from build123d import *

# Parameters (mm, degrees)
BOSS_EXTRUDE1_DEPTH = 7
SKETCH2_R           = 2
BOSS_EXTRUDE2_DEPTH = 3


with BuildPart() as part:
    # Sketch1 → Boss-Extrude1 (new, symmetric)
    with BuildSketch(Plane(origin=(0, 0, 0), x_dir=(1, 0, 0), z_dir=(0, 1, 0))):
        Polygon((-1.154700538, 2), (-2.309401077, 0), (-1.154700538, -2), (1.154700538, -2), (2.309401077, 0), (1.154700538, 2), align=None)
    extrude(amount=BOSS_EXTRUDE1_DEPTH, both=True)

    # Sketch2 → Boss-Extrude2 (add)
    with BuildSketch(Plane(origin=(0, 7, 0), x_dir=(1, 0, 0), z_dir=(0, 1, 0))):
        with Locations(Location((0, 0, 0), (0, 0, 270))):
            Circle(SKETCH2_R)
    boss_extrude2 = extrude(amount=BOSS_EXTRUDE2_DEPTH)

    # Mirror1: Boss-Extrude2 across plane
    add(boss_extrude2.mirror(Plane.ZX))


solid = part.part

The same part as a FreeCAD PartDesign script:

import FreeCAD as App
import Part
import Sketcher
Q = App.Units.Quantity

doc = App.newDocument("Part")
body = doc.addObject("PartDesign::Body", "Body")

# Sketch on XZ plane
sketch1 = body.newObject("Sketcher::SketchObject", "Sketch")
sketch1.AttachmentSupport = (doc.getObject("XZ_Plane"), [""])
sketch1.MapMode = "FlatFace"
sketch1.addGeometry(Part.LineSegment(App.Vector(-1.154701, -2, 0), App.Vector(-2.309401, 0, 0)), False)
sketch1.addGeometry(Part.LineSegment(App.Vector(-2.309401, 0, 0), App.Vector(-1.154701, 2, 0)), False)
sketch1.addGeometry(Part.LineSegment(App.Vector(-1.154701, 2, 0), App.Vector(1.154701, 2, 0)), False)
sketch1.addGeometry(Part.LineSegment(App.Vector(1.154701, 2, 0), App.Vector(2.309401, 0, 0)), False)
sketch1.addGeometry(Part.LineSegment(App.Vector(2.309401, 0, 0), App.Vector(1.154701, -2, 0)), False)
sketch1.addGeometry(Part.LineSegment(App.Vector(1.154701, -2, 0), App.Vector(-1.154701, -2, 0)), False)
sketch1.addConstraint(Sketcher.Constraint("Coincident", 0, 2, 1, 1))
sketch1.addConstraint(Sketcher.Constraint("Coincident", 1, 2, 2, 1))
sketch1.addConstraint(Sketcher.Constraint("Coincident", 2, 2, 3, 1))
sketch1.addConstraint(Sketcher.Constraint("Coincident", 3, 2, 4, 1))
sketch1.addConstraint(Sketcher.Constraint("Coincident", 4, 2, 5, 1))
sketch1.addConstraint(Sketcher.Constraint("Coincident", 5, 2, 0, 1))
sketch1.addConstraint(Sketcher.Constraint("Horizontal", 2))
sketch1.addConstraint(Sketcher.Constraint("Horizontal", 5))
sketch1.addConstraint(Sketcher.Constraint("Symmetric", 0, 2, 3, 2, -1, 1))
sketch1.addConstraint(Sketcher.Constraint("Symmetric", 1, 2, 4, 2, -1, 1))
sketch1.addConstraint(Sketcher.Constraint("PointOnObject", 0, 2, -1))
sketch1.addConstraint(Sketcher.Constraint("Parallel", 0, 3))
sketch1.addConstraint(Sketcher.Constraint("Vertical", 2, 2, 4, 2))
sketch1.addConstraint(Sketcher.Constraint("Angle", 0, Q("120 deg")))
sketch1.addConstraint(Sketcher.Constraint("DistanceY", -1, 1, 1, 2, Q("2 mm")))
sketch1.addConstraint(Sketcher.Constraint("DistanceX", 2, 1, 2, 2, Q("2.309401 mm")))
pad1 = body.newObject("PartDesign::Pad", "Pad")
pad1.Profile = sketch1
pad1.Length = 14
pad1.Midplane = True

# Sketch on XZ plane
sketch2 = body.newObject("Sketcher::SketchObject", "Sketch001")
sketch2.AttachmentSupport = (doc.getObject("XZ_Plane"), [""])
sketch2.MapMode = "FlatFace"
sketch2.AttachmentOffset = App.Placement(App.Vector(0, 0, -7), App.Rotation())
sketch2.addGeometry(Part.Circle(App.Vector(0, 0, 0), App.Vector(0, 0, 1), 2), False)
sketch2.addConstraint(Sketcher.Constraint("Coincident", 0, 3, -1, 1))
sketch2.addConstraint(Sketcher.Constraint("Diameter", 0, Q("4 mm")))
pad2 = body.newObject("PartDesign::Pad", "Pad001")
pad2.Profile = sketch2
pad2.Length = 3
pad2.Reversed = True
doc.recompute()

mirrored = body.newObject("PartDesign::Mirrored", "Mirrored")
mirrored.Originals = [pad2]
mirrored.MirrorPlane = (doc.getObject("XZ_Plane"), [""])
body.Tip = mirrored

doc.recompute()
